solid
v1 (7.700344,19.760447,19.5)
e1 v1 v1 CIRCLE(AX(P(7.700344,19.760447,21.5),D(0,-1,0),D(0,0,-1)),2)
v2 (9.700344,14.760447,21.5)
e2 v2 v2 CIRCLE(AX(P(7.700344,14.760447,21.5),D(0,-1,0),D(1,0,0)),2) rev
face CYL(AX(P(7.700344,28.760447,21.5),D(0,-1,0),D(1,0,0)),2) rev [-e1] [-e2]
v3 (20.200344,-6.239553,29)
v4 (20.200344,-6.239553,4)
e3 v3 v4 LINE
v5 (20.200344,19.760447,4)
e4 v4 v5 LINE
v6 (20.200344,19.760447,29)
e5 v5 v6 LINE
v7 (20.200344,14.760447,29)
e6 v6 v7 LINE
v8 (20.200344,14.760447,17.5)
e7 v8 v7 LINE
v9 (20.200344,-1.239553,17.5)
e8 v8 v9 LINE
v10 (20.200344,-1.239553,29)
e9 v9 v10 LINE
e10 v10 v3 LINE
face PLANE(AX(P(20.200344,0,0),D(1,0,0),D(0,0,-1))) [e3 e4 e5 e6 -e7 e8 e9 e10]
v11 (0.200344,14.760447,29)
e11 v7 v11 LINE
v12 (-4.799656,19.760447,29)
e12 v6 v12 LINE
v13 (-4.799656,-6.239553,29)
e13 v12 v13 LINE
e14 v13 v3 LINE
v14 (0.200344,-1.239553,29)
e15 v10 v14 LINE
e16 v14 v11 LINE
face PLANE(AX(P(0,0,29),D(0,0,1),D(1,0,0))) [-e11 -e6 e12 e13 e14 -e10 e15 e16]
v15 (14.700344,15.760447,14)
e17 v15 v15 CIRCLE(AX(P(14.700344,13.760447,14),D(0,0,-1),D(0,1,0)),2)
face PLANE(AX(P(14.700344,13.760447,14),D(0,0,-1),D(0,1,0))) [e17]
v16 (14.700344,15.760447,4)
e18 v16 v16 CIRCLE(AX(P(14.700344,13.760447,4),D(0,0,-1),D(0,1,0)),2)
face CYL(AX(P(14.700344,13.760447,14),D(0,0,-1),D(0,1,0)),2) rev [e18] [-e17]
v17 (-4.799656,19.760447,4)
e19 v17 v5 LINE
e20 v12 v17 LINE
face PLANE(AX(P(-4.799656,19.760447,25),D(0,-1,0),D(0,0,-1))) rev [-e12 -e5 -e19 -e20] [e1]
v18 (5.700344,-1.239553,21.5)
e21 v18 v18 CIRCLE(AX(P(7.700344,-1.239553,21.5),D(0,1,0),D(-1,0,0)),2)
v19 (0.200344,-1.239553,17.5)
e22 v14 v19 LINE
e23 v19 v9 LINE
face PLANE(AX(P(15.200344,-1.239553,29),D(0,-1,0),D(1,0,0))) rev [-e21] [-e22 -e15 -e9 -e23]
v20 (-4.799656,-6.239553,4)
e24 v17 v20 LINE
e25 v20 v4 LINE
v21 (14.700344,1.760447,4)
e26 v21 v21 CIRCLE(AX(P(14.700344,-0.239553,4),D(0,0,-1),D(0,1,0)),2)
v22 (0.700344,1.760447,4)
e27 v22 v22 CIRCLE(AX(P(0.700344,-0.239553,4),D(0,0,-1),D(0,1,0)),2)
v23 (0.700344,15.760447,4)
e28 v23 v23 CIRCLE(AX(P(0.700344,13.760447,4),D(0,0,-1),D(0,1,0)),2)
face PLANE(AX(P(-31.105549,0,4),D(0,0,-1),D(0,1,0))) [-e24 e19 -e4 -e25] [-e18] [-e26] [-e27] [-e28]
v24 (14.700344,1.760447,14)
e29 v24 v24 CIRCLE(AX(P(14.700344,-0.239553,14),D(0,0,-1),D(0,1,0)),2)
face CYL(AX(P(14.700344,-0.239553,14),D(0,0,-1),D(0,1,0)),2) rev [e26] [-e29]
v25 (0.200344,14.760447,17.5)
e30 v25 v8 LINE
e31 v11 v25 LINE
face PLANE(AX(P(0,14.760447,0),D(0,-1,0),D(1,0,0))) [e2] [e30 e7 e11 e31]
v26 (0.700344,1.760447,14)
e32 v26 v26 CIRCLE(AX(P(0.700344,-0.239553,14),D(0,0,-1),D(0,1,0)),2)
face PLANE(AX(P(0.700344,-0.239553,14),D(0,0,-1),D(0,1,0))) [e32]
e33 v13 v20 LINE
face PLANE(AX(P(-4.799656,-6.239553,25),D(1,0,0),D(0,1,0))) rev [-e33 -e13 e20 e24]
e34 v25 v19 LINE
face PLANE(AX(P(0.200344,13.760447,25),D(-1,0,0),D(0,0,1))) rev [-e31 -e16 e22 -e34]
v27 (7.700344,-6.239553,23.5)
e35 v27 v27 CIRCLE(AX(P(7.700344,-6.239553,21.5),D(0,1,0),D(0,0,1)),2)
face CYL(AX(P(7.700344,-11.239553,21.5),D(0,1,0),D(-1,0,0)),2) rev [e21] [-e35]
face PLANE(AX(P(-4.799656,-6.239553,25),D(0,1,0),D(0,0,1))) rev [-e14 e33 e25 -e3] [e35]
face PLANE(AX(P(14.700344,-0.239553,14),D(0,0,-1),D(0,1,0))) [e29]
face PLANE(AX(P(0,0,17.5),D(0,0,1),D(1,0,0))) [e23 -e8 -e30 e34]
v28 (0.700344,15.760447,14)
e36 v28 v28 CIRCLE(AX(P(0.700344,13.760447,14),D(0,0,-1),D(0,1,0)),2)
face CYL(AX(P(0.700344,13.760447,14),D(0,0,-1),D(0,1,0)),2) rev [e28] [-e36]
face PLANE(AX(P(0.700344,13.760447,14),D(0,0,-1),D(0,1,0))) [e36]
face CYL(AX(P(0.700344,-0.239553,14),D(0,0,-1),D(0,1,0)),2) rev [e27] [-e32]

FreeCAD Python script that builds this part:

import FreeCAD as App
import Part
import Sketcher

V = App.Vector
Q = App.Units.Quantity


def add_polygon(sketch, points):
    """Adds a closed chain of lines whose ends are joined by coincident constraints."""
    first, n = sketch.GeometryCount, len(points)
    for a, b in zip(points, points[1:] + points[:1]):
        sketch.addGeometry(Part.LineSegment(App.Vector(*a, 0), App.Vector(*b, 0)), False)
    for i in range(n):
        sketch.addConstraint(Sketcher.Constraint("Coincident", first + i, 2, first + (i + 1) % n, 1))

doc = App.newDocument("Part")
params = doc.addObject("Spreadsheet::Sheet", "Params")
for row, (alias, value) in enumerate([
    ("sketch1_width", "15 mm"),
    ("sketch1_width2", "20 mm"),
    ("sketch1_height", "6 mm"),
    ("pad1_length", "25 mm"),
    ("sketch2_diameter", "4 mm"),
    ("pocket1_length", "15 mm"),
    ("sketch3_width", "26 mm"),
    ("sketch3_height", "4 mm"),
    ("pad2_length", "20 mm"),
    ("sketch4_width", "15 mm"),
    ("sketch4_height", "5 mm"),
    ("pad3_length", "25 mm"),
    ("sketch5_width", "26 mm"),
    ("sketch5_height", "4 mm"),
    ("pocket2_length", "20 mm"),
    ("sketch6_width", "20 mm"),
    ("sketch6_width2", "5 mm"),
    ("sketch6_height", "6 mm"),
    ("pad4_length", "4 mm"),
    ("sketch7_diameter", "4 mm"),
    ("pocket3_length", "10 mm"),
    ("sketch8_width", "15 mm"),
    ("pad5_length", "14 mm"),
    ("sketch9_width", "15 mm"),
    ("pocket4_length", "0.5 mm"),
    ("sketch10_width", "15 mm"),
    ("sketch10_width2", "5 mm"),
    ("sketch10_width3", "26 mm"),
    ("sketch10_height", "25 mm"),
    ("sketch10_height2", "11.5 mm"),
    ("pad6_length", "5 mm"),
    ("sketch11_diameter", "4 mm"),
    ("pocket5_length", "10 mm"),
    ("sketch12_width", "20 mm"),
    ("sketch12_height", "11.5 mm"),
    ("pocket6_length", "1 mm"),
], start=1):
    params.set(f"A{row}", alias)
    params.set(f"B{row}", "=" + value)
    params.setAlias(f"B{row}", alias)

body = doc.addObject("PartDesign::Body", "Body")

sketch1 = doc.addObject("Sketcher::SketchObject", "Sketch")
body.addObject(sketch1)
sketch1.AttachmentSupport = (doc.XY_Plane, [""])
sketch1.MapMode = "FlatFace"
add_polygon(sketch1, [(0, 14), (15, 14), (15, 20), (-5, 20), (-5, -6), (0, -6)])
sketch1.addConstraint([
    Sketcher.Constraint("Horizontal", 0),
    Sketcher.Constraint("Vertical", 1),
    Sketcher.Constraint("Horizontal", 2),
    Sketcher.Constraint("Vertical", 3),
    Sketcher.Constraint("Horizontal", 4),
    Sketcher.Constraint("Vertical", 5),
    Sketcher.Constraint("Equal", 2, 5),
    Sketcher.Constraint("DistanceX", 0, 1, 0, 2, Q("15 mm")),
    Sketcher.Constraint("DistanceX", 2, 2, 2, 1, Q("20 mm")),
    Sketcher.Constraint("DistanceY", 1, 1, 1, 2, Q("6 mm")),
    Sketcher.Constraint("DistanceX", -1, 1, 0, 2, Q("15.200344 mm")),
    Sketcher.Constraint("DistanceY", -1, 1, 0, 2, Q("13.760447 mm")),
])
sketch1.setExpression("Constraints[13]", "Params.sketch1_width")
sketch1.setExpression("Constraints[14]", "Params.sketch1_width2")
sketch1.setExpression("Constraints[15]", "Params.sketch1_height")
pad1 = doc.addObject("PartDesign::Pad", "Pad")
body.addObject(pad1)
pad1.Profile = sketch1
pad1.setExpression("Length", "Params.pad1_length")

sketch2 = doc.addObject("Sketcher::SketchObject", "Sketch001")
body.addObject(sketch2)
sketch2.AttachmentSupport = (doc.XZ_Plane, [""])
sketch2.MapMode = "FlatFace"
sketch2.AttachmentOffset = App.Placement(V(0, 0, -13.760447), App.Rotation())
sketch2.addGeometry(Part.Circle(V(7.7, 21.5, 0), V(0, 0, 1), 2), False)
sketch2.addConstraint([
    Sketcher.Constraint("Diameter", 0, Q("4 mm")),
    Sketcher.Constraint("DistanceY", -1, 1, 0, 3, Q("21.5 mm")),
    Sketcher.Constraint("DistanceX", -1, 1, 0, 3, Q("7.700344 mm")),
])
sketch2.setExpression("Constraints[0]", "Params.sketch2_diameter")
pocket1 = doc.addObject("PartDesign::Pocket", "Pocket")
body.addObject(pocket1)
pocket1.Profile = sketch2
pocket1.setExpression("Length", "Params.pocket1_length")

sketch3 = doc.addObject("Sketcher::SketchObject", "Sketch002")
body.addObject(sketch3)
sketch3.AttachmentSupport = (doc.YZ_Plane, [""])
sketch3.MapMode = "FlatFace"
sketch3.AttachmentOffset = App.Placement(V(0, 0, -4.799656), App.Rotation())
add_polygon(sketch3, [(19.8, 0), (-6.2, 0), (-6.2, 4), (19.8, 4)])
sketch3.addConstraint([
    Sketcher.Constraint("Horizontal", 0),
    Sketcher.Constraint("Vertical", 1),
    Sketcher.Constraint("Horizontal", 2),
    Sketcher.Constraint("Vertical", 3),
    Sketcher.Constraint("PointOnObject", 0, 2, -1),
    Sketcher.Constraint("DistanceX", 0, 2, 0, 1, Q("26 mm")),
    Sketcher.Constraint("DistanceY", 1, 1, 1, 2, Q("4 mm")),
    Sketcher.Constraint("DistanceX", 0, 2, -1, 1, Q("6.239553 mm")),
])
sketch3.setExpression("Constraints[9]", "Params.sketch3_width")
sketch3.setExpression("Constraints[10]", "Params.sketch3_height")
pad2 = doc.addObject("PartDesign::Pad", "Pad001")
body.addObject(pad2)
pad2.Profile = sketch3
pad2.setExpression("Length", "Params.pad2_length")

sketch4 = doc.addObject("Sketcher::SketchObject", "Sketch003")
body.addObject(sketch4)
sketch4.AttachmentSupport = (doc.XY_Plane, [""])
sketch4.MapMode = "FlatFace"
sketch4.AttachmentOffset = App.Placement(V(0, 0, 4), App.Rotation())
add_polygon(sketch4, [(0, -1), (0, -6), (15, -6), (15, -1)])
sketch4.addConstraint([
    Sketcher.Constraint("Vertical", 0),
    Sketcher.Constraint("Horizontal", 1),
    Sketcher.Constraint("Vertical", 2),
    Sketcher.Constraint("Horizontal", 3),
    Sketcher.Constraint("DistanceX", 1, 1, 1, 2, Q("15 mm")),
    Sketcher.Constraint("DistanceY", 0, 2, 0, 1, Q("5 mm")),
    Sketcher.Constraint("DistanceX", -1, 1, 0, 2, Q("0.200344 mm")),
    Sketcher.Constraint("DistanceY", 0, 2, -1, 1, Q("6.239553 mm")),
])
sketch4.setExpression("Constraints[8]", "Params.sketch4_width")
sketch4.setExpression("Constraints[9]", "Params.sketch4_height")
pad3 = doc.addObject("PartDesign::Pad", "Pad002")
body.addObject(pad3)
pad3.Profile = sketch4
pad3.setExpression("Length", "Params.pad3_length")

sketch5 = doc.addObject("Sketcher::SketchObject", "Sketch004")
body.addObject(sketch5)
sketch5.AttachmentSupport = (doc.YZ_Plane, [""])
sketch5.MapMode = "FlatFace"
sketch5.AttachmentOffset = App.Placement(V(0, 0, 15.200344), App.Rotation())
add_polygon(sketch5, [(-6.2, 4), (-6.2, 0), (19.8, 0), (19.8, 4)])
sketch5.addConstraint([
    Sketcher.Constraint("Vertical", 0),
    Sketcher.Constraint("Horizontal", 1),
    Sketcher.Constraint("Vertical", 2),
    Sketcher.Constraint("Horizontal", 3),
    Sketcher.Constraint("PointOnObject", 0, 2, -1),
    Sketcher.Constraint("DistanceX", 1, 1, 1, 2, Q("26 mm")),
    Sketcher.Constraint("DistanceY", 0, 2, 0, 1, Q("4 mm")),
    Sketcher.Constraint("DistanceX", 0, 2, -1, 1, Q("6.239553 mm")),
])
sketch5.setExpression("Constraints[9]", "Params.sketch5_width")
sketch5.setExpression("Constraints[10]", "Params.sketch5_height")
pocket2 = doc.addObject("PartDesign::Pocket", "Pocket001")
body.addObject(pocket2)
pocket2.Profile = sketch5
pocket2.setExpression("Length", "Params.pocket2_length")

sketch6 = doc.addObject("Sketcher::SketchObject", "Sketch005")
body.addObject(sketch6)
sketch6.AttachmentSupport = (doc.XY_Plane, [""])
sketch6.MapMode = "FlatFace"
sketch6.AttachmentOffset = App.Placement(V(0, 0, 25), App.Rotation())
add_polygon(sketch6, [(15, 14), (15, 20), (-5, 20), (-5, -6), (0, -6), (0, 14)])
sketch6.addConstraint([
    Sketcher.Constraint("Vertical", 0),
    Sketcher.Constraint("Horizontal", 1),
    Sketcher.Constraint("Vertical", 2),
    Sketcher.Constraint("Horizontal", 3),
    Sketcher.Constraint("Vertical", 4),
    Sketcher.Constraint("Horizontal", 5),
    Sketcher.Constraint("Equal", 1, 4),
    Sketcher.Constraint("DistanceX", 1, 2, 1, 1, Q("20 mm")),
    Sketcher.Constraint("DistanceX", 3, 1, 3, 2, Q("5 mm")),
    Sketcher.Constraint("DistanceY", 0, 1, 0, 2, Q("6 mm")),
    Sketcher.Constraint("DistanceX", -1, 1, 0, 2, Q("15.200344 mm")),
    Sketcher.Constraint("DistanceY", -1, 1, 0, 2, Q("19.760447 mm")),
])
sketch6.setExpression("Constraints[13]", "Params.sketch6_width")
sketch6.setExpression("Constraints[14]", "Params.sketch6_width2")
sketch6.setExpression("Constraints[15]", "Params.sketch6_height")
pad4 = doc.addObject("PartDesign::Pad", "Pad003")
body.addObject(pad4)
pad4.Profile = sketch6
pad4.setExpression("Length", "Params.pad4_length")

sketch7 = doc.addObject("Sketcher::SketchObject", "Sketch006")
body.addObject(sketch7)
sketch7.AttachmentSupport = (doc.XZ_Plane, [""])
sketch7.MapMode = "FlatFace"
sketch7.AttachmentOffset = App.Placement(V(0, 0, 11.239553), App.Rotation())
sketch7.addGeometry(Part.Circle(V(7.7, 21.5, 0), V(0, 0, 1), 2), False)
sketch7.addConstraint([
    Sketcher.Constraint("Diameter", 0, Q("4 mm")),
    Sketcher.Constraint("DistanceY", -1, 1, 0, 3, Q("21.5 mm")),
    Sketcher.Constraint("DistanceX", -1, 1, 0, 3, Q("7.700344 mm")),
])
sketch7.setExpression("Constraints[0]", "Params.sketch7_diameter")
pocket3 = doc.addObject("PartDesign::Pocket", "Pocket002")
body.addObject(pocket3)
pocket3.Profile = sketch7
pocket3.setExpression("Length", "Params.pocket3_length")

sketch8 = doc.addObject("Sketcher::SketchObject", "Sketch007")
body.addObject(sketch8)
sketch8.AttachmentSupport = (doc.XY_Plane, [""])
sketch8.MapMode = "FlatFace"
sketch8.AttachmentOffset = App.Placement(V(0, 0, 4), App.Rotation())
add_polygon(sketch8, [(15, 14), (15, -1), (0, -1), (0, 14)])
sketch8.addConstraint([
    Sketcher.Constraint("Vertical", 0),
    Sketcher.Constraint("Horizontal", 1),
    Sketcher.Constraint("Vertical", 2),
    Sketcher.Constraint("Horizontal", 3),
    Sketcher.Constraint("Equal", 3, 0),
    Sketcher.Constraint("DistanceX", 1, 2, 1, 1, Q("15 mm")),
    Sketcher.Constraint("DistanceX", -1, 1, 0, 2, Q("15.200344 mm")),
    Sketcher.Constraint("DistanceY", 0, 2, -1, 1, Q("1.239553 mm")),
])
sketch8.setExpression("Constraints[9]", "Params.sketch8_width")
pad5 = doc.addObject("PartDesign::Pad", "Pad004")
body.addObject(pad5)
pad5.Profile = sketch8
pad5.setExpression("Length", "Params.pad5_length")

sketch9 = doc.addObject("Sketcher::SketchObject", "Sketch008")
body.addObject(sketch9)
sketch9.AttachmentSupport = (doc.XY_Plane, [""])
sketch9.MapMode = "FlatFace"
sketch9.AttachmentOffset = App.Placement(V(0, 0, 18), App.Rotation())
add_polygon(sketch9, [(0, 14), (0, -1), (15, -1), (15, 14)])
sketch9.addConstraint([
    Sketcher.Constraint("Vertical", 0),
    Sketcher.Constraint("Horizontal", 1),
    Sketcher.Constraint("Vertical", 2),
    Sketcher.Constraint("Horizontal", 3),
    Sketcher.Constraint("Equal", 3, 0),
    Sketcher.Constraint("DistanceX", 1, 1, 1, 2, Q("15 mm")),
    Sketcher.Constraint("DistanceX", -1, 1, 0, 2, Q("0.200344 mm")),
    Sketcher.Constraint("DistanceY", 0, 2, -1, 1, Q("1.239553 mm")),
])
sketch9.setExpression("Constraints[9]", "Params.sketch9_width")
pocket4 = doc.addObject("PartDesign::Pocket", "Pocket003")
body.addObject(pocket4)
pocket4.Profile = sketch9
pocket4.setExpression("Length", "Params.pocket4_length")

sketch10 = doc.addObject("Sketcher::SketchObject", "Sketch009")
body.addObject(sketch10)
sketch10.AttachmentSupport = (doc.YZ_Plane, [""])
sketch10.MapMode = "FlatFace"
sketch10.AttachmentOffset = App.Placement(V(0, 0, 15.200344), App.Rotation())
add_polygon(sketch10, [(14, 29), (14, 18), (-1, 18), (-1, 29), (-6, 29), (-6, 4), (20, 4), (20, 29)])
sketch10.addConstraint([
    Sketcher.Constraint("Vertical", 0),
    Sketcher.Constraint("Horizontal", 1),
    Sketcher.Constraint("Vertical", 2),
    Sketcher.Constraint("Horizontal", 3),
    Sketcher.Constraint("Vertical", 4),
    Sketcher.Constraint("Horizontal", 5),
    Sketcher.Constraint("Vertical", 6),
    Sketcher.Constraint("Horizontal", 7),
    Sketcher.Constraint("Horizontal", 3, 2, 6, 2),
    Sketcher.Constraint("DistanceX", 1, 2, 1, 1, Q("15 mm")),
    Sketcher.Constraint("DistanceX", 3, 2, 3, 1, Q("5 mm")),
    Sketcher.Constraint("DistanceX", 5, 1, 5, 2, Q("26 mm")),
    Sketcher.Constraint("DistanceY", 4, 2, 4, 1, Q("25 mm")),
    Sketcher.Constraint("DistanceY", 0, 2, 0, 1, Q("11.5 mm")),
    Sketcher.Constraint("DistanceY", -1, 1, 2, 2, Q("29 mm")),
    Sketcher.Constraint("DistanceX", -1, 1, 0, 2, Q("13.760447 mm")),
])
sketch10.setExpression("Constraints[17]", "Params.sketch10_width")
sketch10.setExpression("Constraints[18]", "Params.sketch10_width2")
sketch10.setExpression("Constraints[19]", "Params.sketch10_width3")
sketch10.setExpression("Constraints[20]", "Params.sketch10_height")
sketch10.setExpression("Constraints[21]", "Params.sketch10_height2")
pad6 = doc.addObject("PartDesign::Pad", "Pad005")
body.addObject(pad6)
pad6.Profile = sketch10
pad6.setExpression("Length", "Params.pad6_length")

sketch11 = doc.addObject("Sketcher::SketchObject", "Sketch010")
body.addObject(sketch11)
sketch11.AttachmentSupport = (doc.XY_Plane, [""])
sketch11.MapMode = "FlatFace"
sketch11.AttachmentOffset = App.Placement(V(0, 0, 4), App.Rotation())
sketch11.addGeometry([
    Part.Circle(V(14.7, -0.2, 0), V(0, 0, 1), 2),
    Part.Circle(V(14.7, 13.8, 0), V(0, 0, 1), 2),
    Part.Circle(V(0.7, 13.8, 0), V(0, 0, 1), 2),
    Part.Circle(V(0.7, -0.2, 0), V(0, 0, 1), 2),
], False)
sketch11.addConstraint([
    Sketcher.Constraint("Equal", 0, 1),
    Sketcher.Constraint("Equal", 1, 2),
    Sketcher.Constraint("Equal", 2, 3),
    Sketcher.Constraint("Horizontal", 1, 3, 2, 3),
    Sketcher.Constraint("Horizontal", 0, 3, 3, 3),
    Sketcher.Constraint("Vertical", 0, 3, 1, 3),
    Sketcher.Constraint("Vertical", 2, 3, 3, 3),
    Sketcher.Constraint("Diameter", 0, Q("4 mm")),
    Sketcher.Constraint("DistanceY", 0, 3, 1, 3, Q("14 mm")),
    Sketcher.Constraint("DistanceX", 2, 3, 1, 3, Q("14 mm")),
    Sketcher.Constraint("DistanceX", -1, 1, 0, 3, Q("14.700344 mm")),
    Sketcher.Constraint("DistanceY", 0, 3, -1, 1, Q("0.239553 mm")),
])
sketch11.setExpression("Constraints[7]", "Params.sketch11_diameter")
pocket5 = doc.addObject("PartDesign::Pocket", "Pocket004")
body.addObject(pocket5)
pocket5.Profile = sketch11
pocket5.setExpression("Length", "Params.pocket5_length")
pocket5.Reversed = True

sketch12 = doc.addObject("Sketcher::SketchObject", "Sketch011")
body.addObject(sketch12)
sketch12.AttachmentSupport = (doc.XZ_Plane, [""])
sketch12.MapMode = "FlatFace"
sketch12.AttachmentOffset = App.Placement(V(0, 0, -13.760447), App.Rotation())
add_polygon(sketch12, [(0, 29), (0, 18), (20, 18), (20, 29)])
sketch12.addConstraint([
    Sketcher.Constraint("Vertical", 0),
    Sketcher.Constraint("Horizontal", 1),
    Sketcher.Constraint("Vertical", 2),
    Sketcher.Constraint("Horizontal", 3),
    Sketcher.Constraint("DistanceX", 1, 1, 1, 2, Q("20 mm")),
    Sketcher.Constraint("DistanceY", 0, 2, 0, 1, Q("11.5 mm")),
    Sketcher.Constraint("DistanceY", -1, 1, 2, 2, Q("29 mm")),
    Sketcher.Constraint("DistanceX", -1, 1, 0, 2, Q("0.200344 mm")),
])
sketch12.setExpression("Constraints[8]", "Params.sketch12_width")
sketch12.setExpression("Constraints[9]", "Params.sketch12_height")
pocket6 = doc.addObject("PartDesign::Pocket", "Pocket005")
body.addObject(pocket6)
pocket6.Profile = sketch12
pocket6.setExpression("Length", "Params.pocket6_length")

doc.recompute()
